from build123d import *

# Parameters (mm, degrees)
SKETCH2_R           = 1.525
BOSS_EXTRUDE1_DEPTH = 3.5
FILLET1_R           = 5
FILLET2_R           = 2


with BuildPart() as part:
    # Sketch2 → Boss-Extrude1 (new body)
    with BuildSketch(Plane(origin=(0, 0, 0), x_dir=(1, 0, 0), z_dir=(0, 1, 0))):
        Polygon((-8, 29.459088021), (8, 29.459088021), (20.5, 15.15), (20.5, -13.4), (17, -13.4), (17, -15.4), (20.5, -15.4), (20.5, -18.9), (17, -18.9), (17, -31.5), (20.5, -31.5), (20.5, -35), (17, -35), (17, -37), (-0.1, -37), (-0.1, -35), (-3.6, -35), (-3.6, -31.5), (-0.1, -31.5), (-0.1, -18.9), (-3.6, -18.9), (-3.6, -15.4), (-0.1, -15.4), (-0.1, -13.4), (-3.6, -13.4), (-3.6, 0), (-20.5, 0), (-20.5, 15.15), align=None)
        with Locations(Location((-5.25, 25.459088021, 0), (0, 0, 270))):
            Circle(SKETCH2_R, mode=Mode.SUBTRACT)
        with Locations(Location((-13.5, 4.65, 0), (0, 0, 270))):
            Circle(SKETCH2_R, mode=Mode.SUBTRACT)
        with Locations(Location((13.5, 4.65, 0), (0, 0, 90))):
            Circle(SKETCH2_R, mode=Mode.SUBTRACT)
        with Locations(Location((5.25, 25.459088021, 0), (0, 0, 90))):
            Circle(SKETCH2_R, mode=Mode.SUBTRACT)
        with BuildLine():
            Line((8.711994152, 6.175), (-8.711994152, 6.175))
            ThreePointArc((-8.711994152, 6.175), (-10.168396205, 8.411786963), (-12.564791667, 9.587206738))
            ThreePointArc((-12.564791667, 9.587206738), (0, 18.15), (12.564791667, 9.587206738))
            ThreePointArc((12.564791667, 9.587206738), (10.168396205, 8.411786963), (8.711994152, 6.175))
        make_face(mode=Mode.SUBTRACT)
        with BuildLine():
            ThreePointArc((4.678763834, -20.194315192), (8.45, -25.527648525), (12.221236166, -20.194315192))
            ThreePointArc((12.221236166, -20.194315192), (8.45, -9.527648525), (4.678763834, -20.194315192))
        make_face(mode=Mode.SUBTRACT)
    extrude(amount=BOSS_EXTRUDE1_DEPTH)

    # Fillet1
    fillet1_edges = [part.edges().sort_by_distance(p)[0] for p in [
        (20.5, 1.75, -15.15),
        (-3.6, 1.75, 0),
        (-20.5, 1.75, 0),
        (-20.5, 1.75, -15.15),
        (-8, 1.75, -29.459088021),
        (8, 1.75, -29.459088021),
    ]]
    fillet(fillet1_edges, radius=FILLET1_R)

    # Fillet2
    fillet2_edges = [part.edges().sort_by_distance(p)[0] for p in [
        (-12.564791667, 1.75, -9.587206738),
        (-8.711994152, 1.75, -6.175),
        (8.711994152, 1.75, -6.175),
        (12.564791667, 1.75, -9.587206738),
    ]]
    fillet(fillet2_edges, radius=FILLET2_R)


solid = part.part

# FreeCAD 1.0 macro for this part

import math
import FreeCAD as App
import Part
import Sketcher
from FreeCAD import Vector


def edges_at(feature, points):
    """Names of the edges that pass closest to the given points."""
    edges = feature.Shape.Edges
    near = lambda p: min(range(len(edges)), key=lambda i: edges[i].distToShape(Part.Vertex(*p))[0])
    return sorted({f"Edge{near(p) + 1}" for p in points})


def add_polygon(sketch, points):
    """Adds a closed chain of lines whose ends are joined by coincident constraints."""
    first, n = sketch.GeometryCount, len(points)
    for a, b in zip(points, points[1:] + points[:1]):
        sketch.addGeometry(Part.LineSegment(App.Vector(*a, 0), App.Vector(*b, 0)), False)
    for i in range(n):
        sketch.addConstraint(Sketcher.Constraint("Coincident", first + i, 2, first + (i + 1) % n, 1))

doc = App.newDocument("Part")
params = doc.addObject("Spreadsheet::Sheet", "Params")
for row, (alias, value) in enumerate([
    ("sketch1_radius", "6 mm"),
    ("sketch1_radius2", "4 mm"),
    ("sketch1_radius3", "13.5 mm"),
    ("sketch1_diameter", "3.05 mm"),
    ("sketch1_width", "16 mm"),
    ("pad1_length", "3.5 mm"),
    ("fillet_radius", "5 mm"),
    ("fillet2_radius", "2 mm"),
], start=1):
    params.set(f"A{row}", alias)
    params.set(f"B{row}", "=" + value)
    params.setAlias(f"B{row}", alias)

body = doc.addObject("PartDesign::Body", "Body")

# Sketch on XZ plane
sketch1 = body.newObject("Sketcher::SketchObject", "Sketch")
sketch1.AttachmentSupport = (doc.getObject("XZ_Plane"), [""])
sketch1.MapMode = "FlatFace"
add_polygon(sketch1, [(8, -29.5), (-8, -29.5), (-20.5, -15.2), (-20.5, 0), (-3.6, 0), (-3.6, 13.4), (-0.1, 13.4), (-0.1, 15.4), (-3.6, 15.4), (-3.6, 18.9), (-0.1, 18.9), (-0.1, 31.5), (-3.6, 31.5), (-3.6, 35), (-0.1, 35), (-0.1, 37), (17, 37), (17, 35), (20.5, 35), (20.5, 31.5), (17, 31.5), (17, 18.9), (20.5, 18.9), (20.5, 15.4), (17, 15.4), (17, 13.4), (20.5, 13.4), (20.5, -15.2)])  # lines 0-27
sketch1.addGeometry(Part.ArcOfCircle(Part.Circle(Vector(8.4, 15.5, 0), Vector(0, 0, 1), 6), math.radians(129), math.radians(411)), False)  # 28
sketch1.addGeometry(Part.ArcOfCircle(Part.Circle(Vector(8.4, 21.5, 0), Vector(0, 0, 1), 4), math.radians(-19), math.radians(199)), False)  # 29
sketch1.addGeometry(Part.Circle(Vector(13.5, -4.7, 0), Vector(0, 0, 1), 1.5), False)  # 30
sketch1.addGeometry(Part.Circle(Vector(5.2, -25.5, 0), Vector(0, 0, 1), 1.5), False)  # 31
sketch1.addGeometry(Part.LineSegment(Vector(8.7, -6.2, 0), Vector(-8.7, -6.2, 0)), False)  # 32
sketch1.addGeometry(Part.ArcOfCircle(Part.Circle(Vector(-13.5, -4.7, 0), Vector(0, 0, 1), 5), math.radians(-79), math.radians(-18)), False)  # 33
sketch1.addGeometry(Part.ArcOfCircle(Part.Circle(Vector(0, -4.6, 0), Vector(0, 0, 1), 13.5), math.radians(-159), math.radians(-21)), False)  # 34
sketch1.addGeometry(Part.ArcOfCircle(Part.Circle(Vector(13.5, -4.7, 0), Vector(0, 0, 1), 5), math.radians(-162), math.radians(-101)), False)  # 35
sketch1.addGeometry(Part.Circle(Vector(-13.5, -4.7, 0), Vector(0, 0, 1), 1.5), False)  # 36
sketch1.addGeometry(Part.Circle(Vector(-5.2, -25.5, 0), Vector(0, 0, 1), 1.5), False)  # 37
sketch1.addConstraint([
    Sketcher.Constraint("Coincident", 28, 1, 29, 2),
    Sketcher.Constraint("Coincident", 29, 1, 28, 2),
    Sketcher.Constraint("Coincident", 32, 2, 33, 2),
    Sketcher.Constraint("Coincident", 33, 1, 34, 1),
    Sketcher.Constraint("Coincident", 34, 2, 35, 2),
    Sketcher.Constraint("Coincident", 35, 1, 32, 1),
    Sketcher.Constraint("Horizontal", 0),
    Sketcher.Constraint("Vertical", 2),
    Sketcher.Constraint("Horizontal", 3),
    Sketcher.Constraint("Vertical", 4),
    Sketcher.Constraint("Horizontal", 5),
    Sketcher.Constraint("Vertical", 6),
    Sketcher.Constraint("Horizontal", 7),
    Sketcher.Constraint("Vertical", 8),
    Sketcher.Constraint("Horizontal", 9),
    Sketcher.Constraint("Vertical", 10),
    Sketcher.Constraint("Horizontal", 11),
    Sketcher.Constraint("Vertical", 12),
    Sketcher.Constraint("Horizontal", 13),
    Sketcher.Constraint("Vertical", 14),
    Sketcher.Constraint("Horizontal", 15),
    Sketcher.Constraint("Vertical", 16),
    Sketcher.Constraint("Horizontal", 17),
    Sketcher.Constraint("Vertical", 18),
    Sketcher.Constraint("Horizontal", 19),
    Sketcher.Constraint("Vertical", 20),
    Sketcher.Constraint("Horizontal", 21),
    Sketcher.Constraint("Vertical", 22),
    Sketcher.Constraint("Horizontal", 23),
    Sketcher.Constraint("Vertical", 24),
    Sketcher.Constraint("Horizontal", 25),
    Sketcher.Constraint("Vertical", 26),
    Sketcher.Constraint("Horizontal", 32),
    Sketcher.Constraint("Coincident", 35, 3, 30, 3),
    Sketcher.Constraint("Coincident", 36, 3, 33, 3),
    Sketcher.Constraint("Equal", 30, 31),
    Sketcher.Constraint("Equal", 33, 35),
    Sketcher.Constraint("Equal", 31, 36),
    Sketcher.Constraint("Equal", 36, 37),
    Sketcher.Constraint("Symmetric", 30, 3, 33, 3, -2),
    Sketcher.Constraint("Symmetric", 31, 3, 37, 3, -2),
    Sketcher.Constraint("Symmetric", 1, 2, 26, 2, -2),
    Sketcher.Constraint("PointOnObject", 34, 3, -2),
    Sketcher.Constraint("PointOnObject", 2, 2, -1),
    Sketcher.Constraint("Horizontal", 33, 3, 34, 3),
    Sketcher.Constraint("Horizontal", 13, 2, 16, 2),
    Sketcher.Constraint("Horizontal", 11, 2, 18, 2),
    Sketcher.Constraint("Horizontal", 9, 2, 20, 2),
    Sketcher.Constraint("Horizontal", 7, 2, 22, 2),
    Sketcher.Constraint("Horizontal", 5, 2, 24, 2),
    Sketcher.Constraint("Horizontal", 28, 1, 29, 1),
    Sketcher.Constraint("Vertical", 4, 2, 7, 2),
    Sketcher.Constraint("Vertical", 6, 2, 9, 2),
    Sketcher.Constraint("Vertical", 8, 2, 11, 2),
    Sketcher.Constraint("Vertical", 10, 2, 13, 2),
    Sketcher.Constraint("Vertical", 16, 2, 19, 2),
    Sketcher.Constraint("Vertical", 18, 2, 21, 2),
    Sketcher.Constraint("Vertical", 20, 2, 23, 2),
    Sketcher.Constraint("Vertical", 22, 2, 25, 2),
    Sketcher.Constraint("Equal", 13, 17),
    Sketcher.Constraint("Equal", 25, 8),
    Sketcher.Constraint("Equal", 8, 12),
    Sketcher.Constraint("Equal", 6, 14),
    Sketcher.Constraint("Equal", 1, 27),
    Sketcher.Constraint("Radius", 28, 6.0),
    Sketcher.Constraint("Radius", 29, 4.0),
    Sketcher.Constraint("Radius", 34, 13.5),
    Sketcher.Constraint("Diameter", 30, 3.05),
    Sketcher.Constraint("DistanceX", 0, 2, 0, 1, 16.0),
    Sketcher.Constraint("DistanceY", 6, 1, 6, 2, 2.0),
    Sketcher.Constraint("Distance", 1, 19.0),
    Sketcher.Constraint("DistanceX", 3, 1, 3, 2, 16.9),
    Sketcher.Constraint("DistanceX", 5, 1, 5, 2, 3.5),
    Sketcher.Constraint("DistanceX", 15, 1, 15, 2, 17.1),
    Sketcher.Constraint("DistanceY", 4, 1, 4, 2, 13.4),
    Sketcher.Constraint("DistanceY", 10, 1, 10, 2, 12.6),
    Sketcher.Constraint("Radius", 33, 5.025),
    Sketcher.Constraint("DistanceY", 28, 3, 29, 3, 6.0),
    Sketcher.Constraint("DistanceX", 33, 3, 30, 3, 27.0),
    Sketcher.Constraint("DistanceY", 0, 2, 37, 3, 4.0),
    Sketcher.Constraint("DistanceY", 2, 1, 2, 2, 15.15),
    Sketcher.Constraint("DistanceX", 31, 3, 28, 3, 3.2),
    Sketcher.Constraint("DistanceX", 37, 3, 31, 3, 10.5),
    Sketcher.Constraint("DistanceY", 1, 2, 33, 3, 10.5),
    Sketcher.Constraint("DistanceY", 32, 2, -1, 1, 6.175),
    Sketcher.Constraint("DistanceY", -1, 1, 28, 3, 15.527649),
])
sketch1.setExpression("Constraints[92]", "Params.sketch1_radius")
sketch1.setExpression("Constraints[93]", "Params.sketch1_radius2")
sketch1.setExpression("Constraints[94]", "Params.sketch1_radius3")
sketch1.setExpression("Constraints[95]", "Params.sketch1_diameter")
sketch1.setExpression("Constraints[96]", "Params.sketch1_width")
pad1 = body.newObject("PartDesign::Pad", "Pad")
pad1.Profile = sketch1
pad1.setExpression("Length", "Params.pad1_length")
pad1.Reversed = True
doc.recompute()

fillet = body.newObject("PartDesign::Fillet", "Fillet")
fillet.Base = (pad1, edges_at(pad1, [
    (20.5, 1.75, -15.15),
    (-3.6, 1.75, 0),
    (-20.5, 1.75, 0),
    (-20.5, 1.75, -15.15),
    (-8, 1.75, -29.459),
    (8, 1.75, -29.459),
]))
fillet.setExpression("Radius", "Params.fillet_radius")
doc.recompute()

fillet2 = body.newObject("PartDesign::Fillet", "Fillet001")
fillet2.Base = (fillet, edges_at(fillet, [
    (-12.565, 1.75, -9.587),
    (-8.712, 1.75, -6.175),
    (8.712, 1.75, -6.175),
    (12.565, 1.75, -9.587),
]))
fillet2.setExpression("Radius", "Params.fillet2_radius")

doc.recompute()
